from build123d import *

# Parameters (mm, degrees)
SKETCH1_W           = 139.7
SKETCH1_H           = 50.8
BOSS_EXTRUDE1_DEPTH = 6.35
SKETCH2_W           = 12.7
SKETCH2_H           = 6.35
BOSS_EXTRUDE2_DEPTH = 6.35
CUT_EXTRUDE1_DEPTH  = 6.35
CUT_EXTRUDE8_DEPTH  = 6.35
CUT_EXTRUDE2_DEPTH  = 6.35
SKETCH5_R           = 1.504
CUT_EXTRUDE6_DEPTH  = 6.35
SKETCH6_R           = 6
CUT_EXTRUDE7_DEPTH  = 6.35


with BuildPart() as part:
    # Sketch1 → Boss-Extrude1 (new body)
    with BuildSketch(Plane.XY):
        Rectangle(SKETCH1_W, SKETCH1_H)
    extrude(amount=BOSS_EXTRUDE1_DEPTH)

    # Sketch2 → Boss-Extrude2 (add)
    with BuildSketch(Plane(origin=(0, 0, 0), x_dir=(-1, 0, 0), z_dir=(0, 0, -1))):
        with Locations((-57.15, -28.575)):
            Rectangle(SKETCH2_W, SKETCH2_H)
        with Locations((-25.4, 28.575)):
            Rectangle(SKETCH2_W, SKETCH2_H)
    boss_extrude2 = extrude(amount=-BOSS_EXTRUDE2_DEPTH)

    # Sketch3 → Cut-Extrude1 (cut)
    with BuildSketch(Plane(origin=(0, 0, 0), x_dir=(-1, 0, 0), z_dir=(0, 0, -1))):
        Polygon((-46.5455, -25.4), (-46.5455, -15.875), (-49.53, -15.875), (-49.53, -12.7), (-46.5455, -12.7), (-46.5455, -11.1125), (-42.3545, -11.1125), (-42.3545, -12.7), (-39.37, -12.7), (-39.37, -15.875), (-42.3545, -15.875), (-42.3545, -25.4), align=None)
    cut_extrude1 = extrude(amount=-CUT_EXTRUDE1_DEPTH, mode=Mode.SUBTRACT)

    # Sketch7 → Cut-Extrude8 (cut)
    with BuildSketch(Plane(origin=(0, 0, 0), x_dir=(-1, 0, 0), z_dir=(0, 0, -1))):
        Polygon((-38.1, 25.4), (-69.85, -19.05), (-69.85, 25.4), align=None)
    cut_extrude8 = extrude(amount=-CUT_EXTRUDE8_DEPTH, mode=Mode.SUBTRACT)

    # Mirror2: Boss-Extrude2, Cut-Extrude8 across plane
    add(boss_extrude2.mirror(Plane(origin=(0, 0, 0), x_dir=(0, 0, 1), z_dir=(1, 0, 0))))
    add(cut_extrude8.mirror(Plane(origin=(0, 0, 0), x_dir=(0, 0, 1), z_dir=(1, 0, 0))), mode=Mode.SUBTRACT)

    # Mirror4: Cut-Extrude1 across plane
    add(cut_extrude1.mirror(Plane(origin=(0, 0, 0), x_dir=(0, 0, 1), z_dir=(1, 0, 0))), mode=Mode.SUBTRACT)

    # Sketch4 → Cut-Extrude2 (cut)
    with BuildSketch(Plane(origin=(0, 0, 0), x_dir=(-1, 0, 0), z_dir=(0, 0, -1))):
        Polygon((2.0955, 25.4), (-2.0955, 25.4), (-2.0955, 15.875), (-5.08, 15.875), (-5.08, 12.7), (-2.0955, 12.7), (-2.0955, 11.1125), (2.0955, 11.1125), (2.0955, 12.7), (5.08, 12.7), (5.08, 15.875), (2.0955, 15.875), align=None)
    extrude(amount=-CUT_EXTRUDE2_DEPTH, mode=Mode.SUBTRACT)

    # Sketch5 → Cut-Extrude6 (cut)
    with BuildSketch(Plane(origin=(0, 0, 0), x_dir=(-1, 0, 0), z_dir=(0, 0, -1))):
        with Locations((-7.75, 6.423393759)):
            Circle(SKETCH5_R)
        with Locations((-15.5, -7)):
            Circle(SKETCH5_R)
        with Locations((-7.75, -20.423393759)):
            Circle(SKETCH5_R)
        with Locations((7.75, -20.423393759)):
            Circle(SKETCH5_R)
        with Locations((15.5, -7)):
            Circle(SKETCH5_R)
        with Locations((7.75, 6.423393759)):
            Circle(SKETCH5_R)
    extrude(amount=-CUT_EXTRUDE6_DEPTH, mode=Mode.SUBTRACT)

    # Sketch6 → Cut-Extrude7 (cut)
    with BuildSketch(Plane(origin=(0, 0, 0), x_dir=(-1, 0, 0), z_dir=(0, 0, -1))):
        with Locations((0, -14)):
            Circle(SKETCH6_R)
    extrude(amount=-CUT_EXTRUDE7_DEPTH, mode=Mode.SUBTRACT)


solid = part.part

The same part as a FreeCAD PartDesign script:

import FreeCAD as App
import Part
import Sketcher

V = App.Vector
Q = App.Units.Quantity

doc = App.newDocument("Part")
body = doc.addObject("PartDesign::Body", "Body")

# Sketch on XY plane
sketch1 = body.newObject("Sketcher::SketchObject", "Sketch")
sketch1.AttachmentSupport = (doc.getObject("XY_Plane"), [""])
sketch1.MapMode = "FlatFace"
sketch1.addGeometry([
    Part.LineSegment(V(-70, 25, 0), V(-70, -25, 0)),
    Part.LineSegment(V(-70, -25, 0), V(70, -25, 0)),
    Part.LineSegment(V(70, -25, 0), V(70, 25, 0)),
    Part.LineSegment(V(70, 25, 0), V(-70, 25, 0)),
], False)
sketch1.addConstraint([
    Sketcher.Constraint("Coincident", 0, 2, 1, 1),
    Sketcher.Constraint("Coincident", 1, 2, 2, 1),
    Sketcher.Constraint("Coincident", 2, 2, 3, 1),
    Sketcher.Constraint("Coincident", 3, 2, 0, 1),
    Sketcher.Constraint("Vertical", 0),
    Sketcher.Constraint("Horizontal", 1),
    Sketcher.Constraint("Vertical", 2),
    Sketcher.Constraint("Horizontal", 3),
    Sketcher.Constraint("Symmetric", 0, 2, 2, 2, -1, 1),
    Sketcher.Constraint("DistanceY", 0, 2, 0, 1, Q("2 in")),
    Sketcher.Constraint("DistanceX", 1, 1, 1, 2, Q("5.5 in")),
])
pad1 = body.newObject("PartDesign::Pad", "Pad")
pad1.Profile = sketch1
pad1.Length = Q("0.25 in")

# Sketch on XY plane
sketch2 = body.newObject("Sketcher::SketchObject", "Sketch001")
sketch2.AttachmentSupport = (doc.getObject("XY_Plane"), [""])
sketch2.MapMode = "FlatFace"
sketch2.addGeometry([
    Part.LineSegment(V(64, -25, 0), V(64, -32, 0)),  # 0
    Part.LineSegment(V(64, -32, 0), V(51, -32, 0)),  # 1
    Part.LineSegment(V(51, -32, 0), V(51, -25, 0)),  # 2
    Part.LineSegment(V(51, -25, 0), V(64, -25, 0)),  # 3
    Part.LineSegment(V(32, 32, 0), V(32, 25, 0)),  # 4
    Part.LineSegment(V(32, 25, 0), V(19, 25, 0)),  # 5
    Part.LineSegment(V(19, 25, 0), V(19, 32, 0)),  # 6
    Part.LineSegment(V(19, 32, 0), V(32, 32, 0)),  # 7
], False)
sketch2.addConstraint([
    Sketcher.Constraint("Coincident", 0, 2, 1, 1),
    Sketcher.Constraint("Coincident", 1, 2, 2, 1),
    Sketcher.Constraint("Coincident", 2, 2, 3, 1),
    Sketcher.Constraint("Coincident", 3, 2, 0, 1),
    Sketcher.Constraint("Coincident", 4, 2, 5, 1),
    Sketcher.Constraint("Coincident", 5, 2, 6, 1),
    Sketcher.Constraint("Coincident", 6, 2, 7, 1),
    Sketcher.Constraint("Coincident", 7, 2, 4, 1),
    Sketcher.Constraint("Vertical", 0),
    Sketcher.Constraint("Horizontal", 1),
    Sketcher.Constraint("Vertical", 2),
    Sketcher.Constraint("Horizontal", 3),
    Sketcher.Constraint("Vertical", 4),
    Sketcher.Constraint("Horizontal", 5),
    Sketcher.Constraint("Vertical", 6),
    Sketcher.Constraint("Horizontal", 7),
    Sketcher.Constraint("Equal", 3, 5),
    Sketcher.Constraint("Equal", 2, 4),
    Sketcher.Constraint("DistanceX", 1, 2, 1, 1, Q("0.5 in")),
    Sketcher.Constraint("DistanceX", -1, 1, 1, 2, Q("2 in")),
    Sketcher.Constraint("DistanceY", 2, 2, -1, 1, Q("1 in")),
    Sketcher.Constraint("DistanceY", -1, 1, 4, 2, Q("1 in")),
    Sketcher.Constraint("DistanceY", 0, 2, 0, 1, Q("0.25 in")),
    Sketcher.Constraint("DistanceX", -1, 1, 4, 2, Q("1.25 in")),
])
pad2 = body.newObject("PartDesign::Pad", "Pad001")
pad2.Profile = sketch2
pad2.Length = Q("0.25 in")

# Sketch on XY plane
sketch3 = body.newObject("Sketcher::SketchObject", "Sketch002")
sketch3.AttachmentSupport = (doc.getObject("XY_Plane"), [""])
sketch3.MapMode = "FlatFace"
sketch3.addGeometry([
    Part.LineSegment(V(46.5, -15.9, 0), V(46.5, -25.4, 0)),  # 0
    Part.LineSegment(V(46.5, -25.4, 0), V(42.4, -25.4, 0)),  # 1
    Part.LineSegment(V(42.4, -25.4, 0), V(42.4, -15.9, 0)),  # 2
    Part.LineSegment(V(42.4, -15.9, 0), V(39.4, -15.9, 0)),  # 3
    Part.LineSegment(V(39.4, -15.9, 0), V(39.4, -12.7, 0)),  # 4
    Part.LineSegment(V(39.4, -12.7, 0), V(42.4, -12.7, 0)),  # 5
    Part.LineSegment(V(42.4, -12.7, 0), V(42.4, -11.1, 0)),  # 6
    Part.LineSegment(V(42.4, -11.1, 0), V(46.5, -11.1, 0)),  # 7
    Part.LineSegment(V(46.5, -11.1, 0), V(46.5, -12.7, 0)),  # 8
    Part.LineSegment(V(46.5, -12.7, 0), V(49.5, -12.7, 0)),  # 9
    Part.LineSegment(V(49.5, -12.7, 0), V(49.5, -15.9, 0)),  # 10
    Part.LineSegment(V(49.5, -15.9, 0), V(46.5, -15.9, 0)),  # 11
], False)
sketch3.addConstraint([
    Sketcher.Constraint("Coincident", 0, 2, 1, 1),
    Sketcher.Constraint("Coincident", 1, 2, 2, 1),
    Sketcher.Constraint("Coincident", 2, 2, 3, 1),
    Sketcher.Constraint("Coincident", 3, 2, 4, 1),
    Sketcher.Constraint("Coincident", 4, 2, 5, 1),
    Sketcher.Constraint("Coincident", 5, 2, 6, 1),
    Sketcher.Constraint("Coincident", 6, 2, 7, 1),
    Sketcher.Constraint("Coincident", 7, 2, 8, 1),
    Sketcher.Constraint("Coincident", 8, 2, 9, 1),
    Sketcher.Constraint("Coincident", 9, 2, 10, 1),
    Sketcher.Constraint("Coincident", 10, 2, 11, 1),
    Sketcher.Constraint("Coincident", 11, 2, 0, 1),
    Sketcher.Constraint("Vertical", 0),
    Sketcher.Constraint("Horizontal", 1),
    Sketcher.Constraint("Vertical", 2),
    Sketcher.Constraint("Horizontal", 3),
    Sketcher.Constraint("Vertical", 4),
    Sketcher.Constraint("Horizontal", 5),
    Sketcher.Constraint("Vertical", 6),
    Sketcher.Constraint("Horizontal", 7),
    Sketcher.Constraint("Vertical", 8),
    Sketcher.Constraint("Horizontal", 9),
    Sketcher.Constraint("Vertical", 10),
    Sketcher.Constraint("Horizontal", 11),
    Sketcher.Constraint("Horizontal", 5, 2, 8, 2),
    Sketcher.Constraint("Horizontal", 3, 2, 10, 2),
    Sketcher.Constraint("Vertical", 2, 2, 5, 2),
    Sketcher.Constraint("Vertical", 0, 2, 7, 2),
    Sketcher.Constraint("Equal", 5, 9),
    Sketcher.Constraint("DistanceY", 0, 2, -1, 1, Q("1 in")),
    Sketcher.Constraint("DistanceY", 4, 2, -1, 1, Q("0.5 in")),
    Sketcher.Constraint("DistanceX", 1, 2, 1, 1, Q("0.165 in")),
    Sketcher.Constraint("DistanceY", 0, 2, 0, 1, Q("0.375 in")),
    Sketcher.Constraint("DistanceY", 6, 1, 6, 2, Q("0.0625 in")),
    Sketcher.Constraint("DistanceX", -1, 1, 3, 2, Q("1.55 in")),
    Sketcher.Constraint("DistanceX", -1, 1, 9, 2, Q("1.95 in")),
])
pocket1 = body.newObject("PartDesign::Pocket", "Pocket")
pocket1.Profile = sketch3
pocket1.Length = Q("0.25 in")
pocket1.Reversed = True

# Sketch on XY plane
sketch4 = body.newObject("Sketcher::SketchObject", "Sketch003")
sketch4.AttachmentSupport = (doc.getObject("XY_Plane"), [""])
sketch4.MapMode = "FlatFace"
sketch4.addGeometry([
    Part.LineSegment(V(70, -19, 0), V(38, 25, 0)),
    Part.LineSegment(V(38, 25, 0), V(70, 25, 0)),
    Part.LineSegment(V(70, 25, 0), V(70, -19, 0)),
], False)
sketch4.addConstraint([
    Sketcher.Constraint("Coincident", 0, 2, 1, 1),
    Sketcher.Constraint("Coincident", 1, 2, 2, 1),
    Sketcher.Constraint("Coincident", 2, 2, 0, 1),
    Sketcher.Constraint("Horizontal", 1),
    Sketcher.Constraint("Vertical", 2),
    Sketcher.Constraint("DistanceY", -1, 1, 0, 2, Q("1 in")),
    Sketcher.Constraint("DistanceX", 1, 1, 1, 2, Q("1.25 in")),
    Sketcher.Constraint("DistanceY", 2, 2, 2, 1, Q("1.75 in")),
    Sketcher.Constraint("DistanceX", -1, 1, 0, 2, Q("1.5 in")),
])
pocket2 = body.newObject("PartDesign::Pocket", "Pocket001")
pocket2.Profile = sketch4
pocket2.Length = Q("0.25 in")
pocket2.Reversed = True
doc.recompute()

mirrored = body.newObject("PartDesign::Mirrored", "Mirrored")
mirrored.Originals = [pad2, pocket2]
mirrored.MirrorPlane = (doc.getObject("YZ_Plane"), [""])
body.Tip = mirrored
doc.recompute()

mirrored2 = body.newObject("PartDesign::Mirrored", "Mirrored001")
mirrored2.Originals = [pocket1]
mirrored2.MirrorPlane = (doc.getObject("YZ_Plane"), [""])
body.Tip = mirrored2

# Sketch on XY plane
sketch5 = body.newObject("Sketcher::SketchObject", "Sketch004")
sketch5.AttachmentSupport = (doc.getObject("XY_Plane"), [""])
sketch5.MapMode = "FlatFace"
sketch5.addGeometry([
    Part.LineSegment(V(-2.1, 25.4, 0), V(2.1, 25.4, 0)),  # 0
    Part.LineSegment(V(2.1, 25.4, 0), V(2.1, 15.9, 0)),  # 1
    Part.LineSegment(V(2.1, 15.9, 0), V(5.1, 15.9, 0)),  # 2
    Part.LineSegment(V(5.1, 15.9, 0), V(5.1, 12.7, 0)),  # 3
    Part.LineSegment(V(5.1, 12.7, 0), V(2.1, 12.7, 0)),  # 4
    Part.LineSegment(V(2.1, 12.7, 0), V(2.1, 11.1, 0)),  # 5
    Part.LineSegment(V(2.1, 11.1, 0), V(-2.1, 11.1, 0)),  # 6
    Part.LineSegment(V(-2.1, 11.1, 0), V(-2.1, 12.7, 0)),  # 7
    Part.LineSegment(V(-2.1, 12.7, 0), V(-5.1, 12.7, 0)),  # 8
    Part.LineSegment(V(-5.1, 12.7, 0), V(-5.1, 15.9, 0)),  # 9
    Part.LineSegment(V(-5.1, 15.9, 0), V(-2.1, 15.9, 0)),  # 10
    Part.LineSegment(V(-2.1, 15.9, 0), V(-2.1, 25.4, 0)),  # 11
], False)
sketch5.addConstraint([
    Sketcher.Constraint("Coincident", 0, 2, 1, 1),
    Sketcher.Constraint("Coincident", 1, 2, 2, 1),
    Sketcher.Constraint("Coincident", 2, 2, 3, 1),
    Sketcher.Constraint("Coincident", 3, 2, 4, 1),
    Sketcher.Constraint("Coincident", 4, 2, 5, 1),
    Sketcher.Constraint("Coincident", 5, 2, 6, 1),
    Sketcher.Constraint("Coincident", 6, 2, 7, 1),
    Sketcher.Constraint("Coincident", 7, 2, 8, 1),
    Sketcher.Constraint("Coincident", 8, 2, 9, 1),
    Sketcher.Constraint("Coincident", 9, 2, 10, 1),
    Sketcher.Constraint("Coincident", 10, 2, 11, 1),
    Sketcher.Constraint("Coincident", 11, 2, 0, 1),
    Sketcher.Constraint("Horizontal", 0),
    Sketcher.Constraint("Vertical", 1),
    Sketcher.Constraint("Horizontal", 2),
    Sketcher.Constraint("Vertical", 3),
    Sketcher.Constraint("Horizontal", 4),
    Sketcher.Constraint("Vertical", 5),
    Sketcher.Constraint("Horizontal", 6),
    Sketcher.Constraint("Vertical", 7),
    Sketcher.Constraint("Horizontal", 8),
    Sketcher.Constraint("Vertical", 9),
    Sketcher.Constraint("Horizontal", 10),
    Sketcher.Constraint("Vertical", 11),
    Sketcher.Constraint("Symmetric", 4, 2, 7, 2, -2),
    Sketcher.Constraint("Symmetric", 2, 2, 9, 2, -2),
    Sketcher.Constraint("Vertical", 1, 2, 4, 2),
    Sketcher.Constraint("Vertical", 7, 2, 10, 2),
    Sketcher.Constraint("DistanceY", -1, 1, 0, 2, Q("1 in")),
    Sketcher.Constraint("DistanceX", -1, 1, 2, 2, Q("0.2 in")),
    Sketcher.Constraint("DistanceY", -1, 1, 3, 2, Q("0.5 in")),
    Sketcher.Constraint("DistanceX", 0, 1, 0, 2, Q("0.165 in")),
    Sketcher.Constraint("DistanceY", 1, 2, 1, 1, Q("0.375 in")),
    Sketcher.Constraint("DistanceY", 5, 2, 5, 1, Q("0.0625 in")),
])
pocket3 = body.newObject("PartDesign::Pocket", "Pocket002")
pocket3.Profile = sketch5
pocket3.Length = Q("0.25 in")
pocket3.Reversed = True

# Sketch on XY plane
sketch6 = body.newObject("Sketcher::SketchObject", "Sketch005")
sketch6.AttachmentSupport = (doc.getObject("XY_Plane"), [""])
sketch6.MapMode = "FlatFace"
sketch6.addGeometry([
    Part.Circle(V(7.8, 6.4, 0), V(0, 0, 1), 1.5),  # 0
    Part.Circle(V(15.5, -7, 0), V(0, 0, 1), 1.5),  # 1
    Part.Circle(V(7.8, -20.4, 0), V(0, 0, 1), 1.5),  # 2
    Part.Circle(V(-7.8, -20.4, 0), V(0, 0, 1), 1.5),  # 3
    Part.Circle(V(-15.5, -7, 0), V(0, 0, 1), 1.5),  # 4
    Part.Circle(V(-7.8, 6.4, 0), V(0, 0, 1), 1.5),  # 5
], False)
sketch6.addConstraint([
    Sketcher.Constraint("Equal", 0, 1),
    Sketcher.Constraint("Equal", 1, 2),
    Sketcher.Constraint("Equal", 2, 3),
    Sketcher.Constraint("Equal", 3, 4),
    Sketcher.Constraint("Equal", 4, 5),
    Sketcher.Constraint("Symmetric", 2, 3, 3, 3, -2),
    Sketcher.Constraint("Symmetric", 1, 3, 4, 3, -2),
    Sketcher.Constraint("Symmetric", 0, 3, 5, 3, -2),
    Sketcher.Constraint("Vertical", 0, 3, 2, 3),
    Sketcher.Constraint("Diameter", 0, 3.008),
    Sketcher.Constraint("DistanceX", -1, 1, 0, 3, 7.75),
    Sketcher.Constraint("DistanceX", -1, 1, 1, 3, 15.5),
    Sketcher.Constraint("DistanceY", 1, 3, -1, 1, 7.0),
    Sketcher.Constraint("DistanceY", -1, 1, 0, 3, 6.423394),
    Sketcher.Constraint("DistanceY", 2, 3, -1, 1, 20.423394),
])
pocket4 = body.newObject("PartDesign::Pocket", "Pocket003")
pocket4.Profile = sketch6
pocket4.Length = Q("0.25 in")
pocket4.Reversed = True

# Sketch on XY plane
sketch7 = body.newObject("Sketcher::SketchObject", "Sketch006")
sketch7.AttachmentSupport = (doc.getObject("XY_Plane"), [""])
sketch7.MapMode = "FlatFace"
sketch7.addGeometry(Part.Circle(V(0, -14, 0), V(0, 0, 1), 6), False)
sketch7.addConstraint([
    Sketcher.Constraint("PointOnObject", 0, 3, -2),
    Sketcher.Constraint("Diameter", 0, 12.0),
    Sketcher.Constraint("DistanceY", 0, 3, -1, 1, 14.0),
])
pocket5 = body.newObject("PartDesign::Pocket", "Pocket004")
pocket5.Profile = sketch7
pocket5.Length = Q("0.25 in")
pocket5.Reversed = True

doc.recompute()
